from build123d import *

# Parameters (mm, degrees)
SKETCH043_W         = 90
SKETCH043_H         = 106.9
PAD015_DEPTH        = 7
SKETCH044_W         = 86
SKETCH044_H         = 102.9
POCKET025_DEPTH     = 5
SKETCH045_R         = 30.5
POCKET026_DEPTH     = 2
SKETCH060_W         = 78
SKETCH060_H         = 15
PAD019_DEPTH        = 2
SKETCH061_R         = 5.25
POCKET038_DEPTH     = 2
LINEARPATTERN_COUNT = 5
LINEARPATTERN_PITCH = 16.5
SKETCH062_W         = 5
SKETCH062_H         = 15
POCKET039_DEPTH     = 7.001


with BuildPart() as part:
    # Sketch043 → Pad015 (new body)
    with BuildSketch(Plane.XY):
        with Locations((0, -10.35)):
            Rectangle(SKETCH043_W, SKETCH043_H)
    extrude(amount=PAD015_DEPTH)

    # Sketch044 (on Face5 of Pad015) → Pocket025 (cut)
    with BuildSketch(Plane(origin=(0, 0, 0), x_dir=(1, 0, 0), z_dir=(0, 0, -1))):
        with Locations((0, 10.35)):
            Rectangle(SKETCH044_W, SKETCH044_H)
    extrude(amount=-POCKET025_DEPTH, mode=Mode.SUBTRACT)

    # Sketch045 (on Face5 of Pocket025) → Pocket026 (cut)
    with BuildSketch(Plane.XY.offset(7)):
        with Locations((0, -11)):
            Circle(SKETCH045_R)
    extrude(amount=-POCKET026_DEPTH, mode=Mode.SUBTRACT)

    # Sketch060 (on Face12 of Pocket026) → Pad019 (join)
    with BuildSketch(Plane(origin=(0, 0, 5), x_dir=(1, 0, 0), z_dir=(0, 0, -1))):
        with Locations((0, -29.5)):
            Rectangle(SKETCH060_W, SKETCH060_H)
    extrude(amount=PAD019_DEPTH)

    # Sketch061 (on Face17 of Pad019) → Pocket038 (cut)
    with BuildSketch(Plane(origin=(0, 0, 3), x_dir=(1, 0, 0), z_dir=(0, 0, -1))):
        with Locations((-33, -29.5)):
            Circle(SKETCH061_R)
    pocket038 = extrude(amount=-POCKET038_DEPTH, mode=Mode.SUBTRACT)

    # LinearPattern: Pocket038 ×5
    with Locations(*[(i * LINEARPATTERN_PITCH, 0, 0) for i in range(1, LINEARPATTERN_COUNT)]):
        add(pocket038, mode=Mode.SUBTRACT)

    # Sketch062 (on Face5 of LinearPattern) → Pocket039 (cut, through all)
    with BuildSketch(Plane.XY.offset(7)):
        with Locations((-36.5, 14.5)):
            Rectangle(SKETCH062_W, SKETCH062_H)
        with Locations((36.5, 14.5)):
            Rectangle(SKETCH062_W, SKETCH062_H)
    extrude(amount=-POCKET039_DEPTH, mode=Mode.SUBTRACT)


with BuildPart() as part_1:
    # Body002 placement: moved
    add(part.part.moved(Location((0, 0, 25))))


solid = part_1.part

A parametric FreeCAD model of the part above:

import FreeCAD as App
import Part
import Sketcher
Q = App.Units.Quantity


def add_polygon(sketch, points):
    """Adds a closed chain of lines whose ends are joined by coincident constraints."""
    first, n = sketch.GeometryCount, len(points)
    for a, b in zip(points, points[1:] + points[:1]):
        sketch.addGeometry(Part.LineSegment(App.Vector(*a, 0), App.Vector(*b, 0)), False)
    for i in range(n):
        sketch.addConstraint(Sketcher.Constraint("Coincident", first + i, 2, first + (i + 1) % n, 1))

doc = App.newDocument("Part")
body = doc.addObject("PartDesign::Body", "Body")

# Sketch on XY plane
sketch1 = body.newObject("Sketcher::SketchObject", "Sketch")
sketch1.AttachmentSupport = (doc.getObject("XY_Plane"), [""])
sketch1.MapMode = "FlatFace"
add_polygon(sketch1, [(-45, 43.1), (-45, -63.8), (45, -63.8), (45, 43.1)])  # lines 0-3
sketch1.addConstraint([
    Sketcher.Constraint("Vertical", 0),
    Sketcher.Constraint("Horizontal", 1),
    Sketcher.Constraint("Vertical", 2),
    Sketcher.Constraint("Horizontal", 3),
    Sketcher.Constraint("DistanceX", 1, 1, 1, 2, Q("90 mm")),
    Sketcher.Constraint("DistanceY", 0, 2, 0, 1, Q("106.9 mm")),
    Sketcher.Constraint("DistanceX", 0, 2, -1, 1, Q("45 mm")),
    Sketcher.Constraint("DistanceY", 0, 2, -1, 1, Q("63.8 mm")),
])
pad1 = body.newObject("PartDesign::Pad", "Pad")
pad1.Profile = sketch1
pad1.Length = 7

# Sketch on XY plane
sketch2 = body.newObject("Sketcher::SketchObject", "Sketch001")
sketch2.AttachmentSupport = (doc.getObject("XY_Plane"), [""])
sketch2.MapMode = "FlatFace"
add_polygon(sketch2, [(-43, -61.8), (-43, 41.1), (43, 41.1), (43, -61.8)])  # lines 0-3
sketch2.addConstraint([
    Sketcher.Constraint("Vertical", 0),
    Sketcher.Constraint("Horizontal", 1),
    Sketcher.Constraint("Vertical", 2),
    Sketcher.Constraint("Horizontal", 3),
    Sketcher.Constraint("DistanceX", 1, 1, 1, 2, Q("86 mm")),
    Sketcher.Constraint("DistanceY", 0, 1, 0, 2, Q("102.9 mm")),
    Sketcher.Constraint("DistanceX", 0, 2, -1, 1, Q("43 mm")),
    Sketcher.Constraint("DistanceY", -1, 1, 0, 2, Q("41.1 mm")),
])
pocket1 = body.newObject("PartDesign::Pocket", "Pocket")
pocket1.Profile = sketch2
pocket1.Length = 5
pocket1.Reversed = True

# Sketch on XY plane
sketch3 = body.newObject("Sketcher::SketchObject", "Sketch002")
sketch3.AttachmentSupport = (doc.getObject("XY_Plane"), [""])
sketch3.MapMode = "FlatFace"
sketch3.AttachmentOffset = App.Placement(App.Vector(0, 0, 7), App.Rotation())
sketch3.addGeometry(Part.Circle(App.Vector(0, -11, 0), App.Vector(0, 0, 1), 30.5), False)
sketch3.addConstraint([
    Sketcher.Constraint("PointOnObject", 0, 3, -2),
    Sketcher.Constraint("Diameter", 0, Q("61 mm")),
    Sketcher.Constraint("DistanceY", 0, 3, -1, 1, Q("11 mm")),
])
pocket2 = body.newObject("PartDesign::Pocket", "Pocket001")
pocket2.Profile = sketch3
pocket2.Length = 2

# Sketch on XY plane
sketch4 = body.newObject("Sketcher::SketchObject", "Sketch003")
sketch4.AttachmentSupport = (doc.getObject("XY_Plane"), [""])
sketch4.MapMode = "FlatFace"
sketch4.AttachmentOffset = App.Placement(App.Vector(0, 0, 5), App.Rotation())
add_polygon(sketch4, [(-39, 22), (-39, 37), (39, 37), (39, 22)])  # lines 0-3
sketch4.addConstraint([
    Sketcher.Constraint("Vertical", 0),
    Sketcher.Constraint("Horizontal", 1),
    Sketcher.Constraint("Vertical", 2),
    Sketcher.Constraint("Horizontal", 3),
    Sketcher.Constraint("DistanceX", 1, 1, 1, 2, Q("78 mm")),
    Sketcher.Constraint("DistanceY", 0, 1, 0, 2, Q("15 mm")),
    Sketcher.Constraint("DistanceX", 0, 2, -1, 1, Q("39 mm")),
    Sketcher.Constraint("DistanceY", -1, 1, 0, 2, Q("37 mm")),
])
pad2 = body.newObject("PartDesign::Pad", "Pad001")
pad2.Profile = sketch4
pad2.Length = 2
pad2.Reversed = True

# Sketch on XY plane
sketch5 = body.newObject("Sketcher::SketchObject", "Sketch004")
sketch5.AttachmentSupport = (doc.getObject("XY_Plane"), [""])
sketch5.MapMode = "FlatFace"
sketch5.AttachmentOffset = App.Placement(App.Vector(0, 0, 3), App.Rotation())
sketch5.addGeometry(Part.Circle(App.Vector(-33, 29.5, 0), App.Vector(0, 0, 1), 5.25), False)
sketch5.addConstraint([
    Sketcher.Constraint("Diameter", 0, Q("10.5 mm")),
    Sketcher.Constraint("DistanceX", 0, 3, -1, 1, Q("33 mm")),
    Sketcher.Constraint("DistanceY", -1, 1, 0, 3, Q("29.5 mm")),
])
pocket3 = body.newObject("PartDesign::Pocket", "Pocket002")
pocket3.Profile = sketch5
pocket3.Length = 2
pocket3.Reversed = True
doc.recompute()

linearpattern = body.newObject("PartDesign::LinearPattern", "LinearPattern")
linearpattern.Originals = [pocket3]
linearpattern.Direction = (doc.getObject("X_Axis"), [""])
linearpattern.Mode = "offset"
linearpattern.Offset = 16.5
linearpattern.Occurrences = 5
body.Tip = linearpattern

# Sketch on XY plane
sketch6 = body.newObject("Sketcher::SketchObject", "Sketch005")
sketch6.AttachmentSupport = (doc.getObject("XY_Plane"), [""])
sketch6.MapMode = "FlatFace"
sketch6.AttachmentOffset = App.Placement(App.Vector(0, 0, 7), App.Rotation())
add_polygon(sketch6, [(-39, 22), (-39, 7), (-34, 7), (-34, 22)])  # lines 0-3
add_polygon(sketch6, [(34, 22), (34, 7), (39, 7), (39, 22)])  # lines 4-7
sketch6.addConstraint([
    Sketcher.Constraint("Vertical", 0),
    Sketcher.Constraint("Horizontal", 1),
    Sketcher.Constraint("Vertical", 2),
    Sketcher.Constraint("Horizontal", 3),
    Sketcher.Constraint("Vertical", 4),
    Sketcher.Constraint("Horizontal", 5),
    Sketcher.Constraint("Vertical", 6),
    Sketcher.Constraint("Horizontal", 7),
    Sketcher.Constraint("Symmetric", 1, 2, 4, 2, -2),
    Sketcher.Constraint("Symmetric", 3, 2, 6, 2, -2),
    Sketcher.Constraint("DistanceX", 1, 1, 1, 2, Q("5 mm")),
    Sketcher.Constraint("DistanceY", 0, 2, 0, 1, Q("15 mm")),
    Sketcher.Constraint("DistanceX", 0, 2, -1, 1, Q("39 mm")),
    Sketcher.Constraint("DistanceY", -1, 1, 0, 2, Q("7 mm")),
])
pocket4 = body.newObject("PartDesign::Pocket", "Pocket003")
pocket4.Profile = sketch6
pocket4.Type = "ThroughAll"
body2 = doc.addObject("PartDesign::Body", "Body001")
doc.recompute()

body.Placement = App.Placement(App.Vector(0, 0, 25), App.Rotation(App.Vector(0, 0, 1), 0))
boolean = body2.newObject("PartDesign::Boolean", "Boolean")
boolean.Type = "Fuse"
boolean.addObjects([body])

doc.recompute()
